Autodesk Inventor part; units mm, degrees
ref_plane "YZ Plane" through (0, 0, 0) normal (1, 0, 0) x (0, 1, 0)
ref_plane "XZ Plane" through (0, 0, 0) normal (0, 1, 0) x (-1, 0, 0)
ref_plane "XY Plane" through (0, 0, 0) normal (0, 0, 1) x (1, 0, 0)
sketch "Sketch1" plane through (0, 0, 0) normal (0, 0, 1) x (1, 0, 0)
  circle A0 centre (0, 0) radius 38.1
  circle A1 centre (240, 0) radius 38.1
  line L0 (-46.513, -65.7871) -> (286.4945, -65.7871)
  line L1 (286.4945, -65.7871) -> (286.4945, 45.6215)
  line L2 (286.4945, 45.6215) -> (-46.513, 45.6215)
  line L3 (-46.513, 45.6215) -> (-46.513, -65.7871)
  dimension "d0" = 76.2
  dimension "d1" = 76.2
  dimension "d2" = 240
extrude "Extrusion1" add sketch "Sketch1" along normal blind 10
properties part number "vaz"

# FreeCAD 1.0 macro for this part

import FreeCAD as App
import Part
import Sketcher

V = App.Vector
Q = App.Units.Quantity

doc = App.newDocument("Part")
params = doc.addObject("Spreadsheet::Sheet", "Params")
for row, (alias, value) in enumerate([
    ("sketch1_diameter", "3 in"),
    ("pad1_length", "0.3937008 in"),
], start=1):
    params.set(f"A{row}", alias)
    params.set(f"B{row}", "=" + value)
    params.setAlias(f"B{row}", alias)

body = doc.addObject("PartDesign::Body", "Body")

sketch1 = body.newObject("Sketcher::SketchObject", "Sketch")
sketch1.AttachmentSupport = (doc.getObject("XY_Plane"), [""])
sketch1.MapMode = "FlatFace"
sketch1.addGeometry(Part.LineSegment(V(-46.513, 45.6215, 0), V(-46.513, -65.7871, 0)), False)
sketch1.addGeometry(Part.LineSegment(V(-46.513, -65.7871, 0), V(286.4945, -65.7871, 0)), False)
sketch1.addGeometry(Part.LineSegment(V(286.4945, -65.7871, 0), V(286.4945, 45.6215, 0)), False)
sketch1.addGeometry(Part.LineSegment(V(286.4945, 45.6215, 0), V(-46.513, 45.6215, 0)), False)
sketch1.addGeometry(Part.Circle(V(0, 0, 0), V(0, 0, 1), 38.1), False)
sketch1.addGeometry(Part.Circle(V(240, 0, 0), V(0, 0, 1), 38.1), False)
sketch1.addConstraint(Sketcher.Constraint("Coincident", 0, 2, 1, 1))
sketch1.addConstraint(Sketcher.Constraint("Coincident", 1, 2, 2, 1))
sketch1.addConstraint(Sketcher.Constraint("Coincident", 2, 2, 3, 1))
sketch1.addConstraint(Sketcher.Constraint("Coincident", 3, 2, 0, 1))
sketch1.addConstraint(Sketcher.Constraint("Vertical", 0))
sketch1.addConstraint(Sketcher.Constraint("Horizontal", 1))
sketch1.addConstraint(Sketcher.Constraint("Vertical", 2))
sketch1.addConstraint(Sketcher.Constraint("Horizontal", 3))
sketch1.addConstraint(Sketcher.Constraint("Coincident", 4, 3, -1, 1))
sketch1.addConstraint(Sketcher.Constraint("Equal", 4, 5))
sketch1.addConstraint(Sketcher.Constraint("PointOnObject", 5, 3, -1))
sketch1.addConstraint(Sketcher.Constraint("Diameter", 4, Q("3 in")))
sketch1.addConstraint(Sketcher.Constraint("DistanceX", -1, 1, 5, 3, 240.0))
sketch1.addConstraint(Sketcher.Constraint("DistanceX", 1, 1, 1, 2, 333.0075))
sketch1.addConstraint(Sketcher.Constraint("DistanceY", 0, 2, 0, 1, 111.4086))
sketch1.addConstraint(Sketcher.Constraint("DistanceX", -1, 1, 1, 2, Q("11.2793 in")))
sketch1.addConstraint(Sketcher.Constraint("DistanceY", 0, 2, -1, 1, 65.787))
sketch1.setExpression("Constraints[11]", "Params.sketch1_diameter")
pad1 = body.newObject("PartDesign::Pad", "Pad")
pad1.Profile = sketch1
pad1.setExpression("Length", "Params.pad1_length")

doc.recompute()
